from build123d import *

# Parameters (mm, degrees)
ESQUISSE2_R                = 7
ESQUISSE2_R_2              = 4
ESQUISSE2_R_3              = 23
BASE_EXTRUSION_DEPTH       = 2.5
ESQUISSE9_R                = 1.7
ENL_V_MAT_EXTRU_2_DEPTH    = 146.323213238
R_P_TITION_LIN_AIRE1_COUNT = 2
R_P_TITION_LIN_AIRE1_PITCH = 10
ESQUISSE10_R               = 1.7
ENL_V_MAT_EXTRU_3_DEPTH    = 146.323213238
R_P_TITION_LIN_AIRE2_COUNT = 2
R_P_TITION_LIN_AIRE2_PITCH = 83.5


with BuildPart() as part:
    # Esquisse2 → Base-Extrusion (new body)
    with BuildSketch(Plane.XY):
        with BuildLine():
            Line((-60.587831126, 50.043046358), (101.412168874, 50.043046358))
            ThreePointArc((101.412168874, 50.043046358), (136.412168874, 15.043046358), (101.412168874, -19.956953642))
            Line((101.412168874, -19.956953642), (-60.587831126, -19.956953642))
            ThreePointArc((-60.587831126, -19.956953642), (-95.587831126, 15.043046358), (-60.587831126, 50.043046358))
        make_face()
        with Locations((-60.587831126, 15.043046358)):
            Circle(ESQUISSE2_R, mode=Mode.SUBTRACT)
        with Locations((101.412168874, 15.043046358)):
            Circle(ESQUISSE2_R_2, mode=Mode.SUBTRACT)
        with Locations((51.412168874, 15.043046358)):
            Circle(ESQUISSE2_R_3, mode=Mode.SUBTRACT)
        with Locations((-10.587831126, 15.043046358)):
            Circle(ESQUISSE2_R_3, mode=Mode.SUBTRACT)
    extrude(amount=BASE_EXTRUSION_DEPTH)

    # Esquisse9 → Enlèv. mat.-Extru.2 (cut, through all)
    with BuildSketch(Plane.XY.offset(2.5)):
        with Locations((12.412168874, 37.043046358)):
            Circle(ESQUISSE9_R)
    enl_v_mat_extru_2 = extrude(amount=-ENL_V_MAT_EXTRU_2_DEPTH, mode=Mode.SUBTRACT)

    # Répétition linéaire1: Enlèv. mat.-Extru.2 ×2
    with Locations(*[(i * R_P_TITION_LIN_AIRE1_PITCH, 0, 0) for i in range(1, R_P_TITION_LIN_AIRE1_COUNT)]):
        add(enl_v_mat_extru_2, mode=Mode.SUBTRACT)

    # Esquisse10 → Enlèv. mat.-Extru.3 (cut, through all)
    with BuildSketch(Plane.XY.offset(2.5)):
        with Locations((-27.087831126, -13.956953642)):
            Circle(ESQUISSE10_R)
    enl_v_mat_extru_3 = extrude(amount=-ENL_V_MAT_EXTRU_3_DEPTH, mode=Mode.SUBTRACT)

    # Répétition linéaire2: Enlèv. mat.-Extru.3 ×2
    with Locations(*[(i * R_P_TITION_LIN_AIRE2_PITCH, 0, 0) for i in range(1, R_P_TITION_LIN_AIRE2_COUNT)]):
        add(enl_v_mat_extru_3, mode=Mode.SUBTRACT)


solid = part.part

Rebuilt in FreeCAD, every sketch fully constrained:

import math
import FreeCAD as App
import Part
import Sketcher

V = App.Vector
Q = App.Units.Quantity

doc = App.newDocument("Part")
body = doc.addObject("PartDesign::Body", "Body")

# Sketch on XY plane
sketch1 = body.newObject("Sketcher::SketchObject", "Sketch")
sketch1.AttachmentSupport = (doc.getObject("XY_Plane"), [""])
sketch1.MapMode = "FlatFace"
sketch1.addGeometry(Part.LineSegment(V(101.4, 50, 0), V(-60.6, 50, 0)), False)
sketch1.addGeometry(Part.ArcOfCircle(Part.Circle(V(-60.6, 15, 0), V(0, 0, 1), 35), math.radians(90), math.radians(270)), False)
sketch1.addGeometry(Part.LineSegment(V(-60.6, -20, 0), V(101.4, -20, 0)), False)
sketch1.addGeometry(Part.ArcOfCircle(Part.Circle(V(101.4, 15, 0), V(0, 0, 1), 35), math.radians(-90), math.radians(90)), False)
sketch1.addGeometry(Part.Circle(V(101.4, 15, 0), V(0, 0, 1), 4), False)
sketch1.addGeometry(Part.Circle(V(51.4, 15, 0), V(0, 0, 1), 23), False)
sketch1.addGeometry(Part.Circle(V(-10.6, 15, 0), V(0, 0, 1), 23), False)
sketch1.addGeometry(Part.Circle(V(-60.6, 15, 0), V(0, 0, 1), 7), False)
sketch1.addConstraint(Sketcher.Constraint("Tangent", 0, 2, 1, 1))
sketch1.addConstraint(Sketcher.Constraint("Tangent", 1, 2, 2, 1))
sketch1.addConstraint(Sketcher.Constraint("Tangent", 2, 2, 3, 1))
sketch1.addConstraint(Sketcher.Constraint("Tangent", 3, 2, 0, 1))
sketch1.addConstraint(Sketcher.Constraint("Horizontal", 0))
sketch1.addConstraint(Sketcher.Constraint("Horizontal", 2))
sketch1.addConstraint(Sketcher.Constraint("Coincident", 4, 3, 3, 3))
sketch1.addConstraint(Sketcher.Constraint("Coincident", 7, 3, 1, 3))
sketch1.addConstraint(Sketcher.Constraint("Equal", 5, 6))
sketch1.addConstraint(Sketcher.Constraint("Horizontal", 4, 3, 5, 3))
sketch1.addConstraint(Sketcher.Constraint("Horizontal", 5, 3, 6, 3))
sketch1.addConstraint(Sketcher.Constraint("Diameter", 4, Q("8 mm")))
sketch1.addConstraint(Sketcher.Constraint("Diameter", 5, Q("46 mm")))
sketch1.addConstraint(Sketcher.Constraint("Diameter", 7, Q("14 mm")))
sketch1.addConstraint(Sketcher.Constraint("Radius", 1, Q("35 mm")))
sketch1.addConstraint(Sketcher.Constraint("DistanceX", 0, 2, 0, 1, Q("162 mm")))
sketch1.addConstraint(Sketcher.Constraint("DistanceX", 5, 3, 3, 3, Q("50 mm")))
sketch1.addConstraint(Sketcher.Constraint("DistanceX", 1, 3, 6, 3, Q("50 mm")))
sketch1.addConstraint(Sketcher.Constraint("DistanceX", 1, 3, -1, 1, Q("60.587831 mm")))
sketch1.addConstraint(Sketcher.Constraint("DistanceY", -1, 1, 1, 3, Q("15.043046 mm")))
pad1 = body.newObject("PartDesign::Pad", "Pad")
pad1.Profile = sketch1
pad1.Length = 2.5

# Sketch on XY plane
sketch2 = body.newObject("Sketcher::SketchObject", "Sketch001")
sketch2.AttachmentSupport = (doc.getObject("XY_Plane"), [""])
sketch2.MapMode = "FlatFace"
sketch2.AttachmentOffset = App.Placement(V(0, 0, 2.5), App.Rotation())
sketch2.addGeometry(Part.Circle(V(12.4, 37, 0), V(0, 0, 1), 1.7), False)
sketch2.addConstraint(Sketcher.Constraint("Diameter", 0, Q("3.4 mm")))
sketch2.addConstraint(Sketcher.Constraint("DistanceX", -1, 1, 0, 3, Q("12.412169 mm")))
sketch2.addConstraint(Sketcher.Constraint("DistanceY", -1, 1, 0, 3, Q("37.043046 mm")))
pocket1 = body.newObject("PartDesign::Pocket", "Pocket")
pocket1.Profile = sketch2
pocket1.Type = "ThroughAll"
doc.recompute()

linearpattern = body.newObject("PartDesign::LinearPattern", "LinearPattern")
linearpattern.Originals = [pocket1]
linearpattern.Direction = (doc.getObject("X_Axis"), [""])
linearpattern.Mode = "offset"
linearpattern.Offset = 10
linearpattern.Occurrences = 2
body.Tip = linearpattern

# Sketch on XY plane
sketch3 = body.newObject("Sketcher::SketchObject", "Sketch002")
sketch3.AttachmentSupport = (doc.getObject("XY_Plane"), [""])
sketch3.MapMode = "FlatFace"
sketch3.AttachmentOffset = App.Placement(V(0, 0, 2.5), App.Rotation())
sketch3.addGeometry(Part.Circle(V(-27.1, -14, 0), V(0, 0, 1), 1.7), False)
sketch3.addConstraint(Sketcher.Constraint("Diameter", 0, Q("3.4 mm")))
sketch3.addConstraint(Sketcher.Constraint("DistanceX", 0, 3, -1, 1, Q("27.087831 mm")))
sketch3.addConstraint(Sketcher.Constraint("DistanceY", 0, 3, -1, 1, Q("13.956954 mm")))
pocket2 = body.newObject("PartDesign::Pocket", "Pocket001")
pocket2.Profile = sketch3
pocket2.Type = "ThroughAll"
doc.recompute()

linearpattern2 = body.newObject("PartDesign::LinearPattern", "LinearPattern001")
linearpattern2.Originals = [pocket2]
linearpattern2.Direction = (doc.getObject("X_Axis"), [""])
linearpattern2.Mode = "offset"
linearpattern2.Offset = 83.5
linearpattern2.Occurrences = 2
body.Tip = linearpattern2

doc.recompute()
